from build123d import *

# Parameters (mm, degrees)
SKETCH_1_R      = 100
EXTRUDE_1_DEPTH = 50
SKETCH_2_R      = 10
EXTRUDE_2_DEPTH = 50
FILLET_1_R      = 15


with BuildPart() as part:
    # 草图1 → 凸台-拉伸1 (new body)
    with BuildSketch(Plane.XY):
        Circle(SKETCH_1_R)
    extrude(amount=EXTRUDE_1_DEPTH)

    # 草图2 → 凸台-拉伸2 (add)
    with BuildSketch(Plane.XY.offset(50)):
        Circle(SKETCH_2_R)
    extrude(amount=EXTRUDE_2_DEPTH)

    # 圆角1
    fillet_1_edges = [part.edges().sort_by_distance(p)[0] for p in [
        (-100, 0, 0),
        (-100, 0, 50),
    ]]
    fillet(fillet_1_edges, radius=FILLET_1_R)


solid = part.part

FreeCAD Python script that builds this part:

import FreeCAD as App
import Part
import Sketcher

V = App.Vector


def edges_at(feature, points):
    """Names of the edges that pass closest to the given points."""
    edges = feature.Shape.Edges
    near = lambda p: min(range(len(edges)), key=lambda i: edges[i].distToShape(Part.Vertex(*p))[0])
    return sorted({f"Edge{near(p) + 1}" for p in points})

doc = App.newDocument("Part")
params = doc.addObject("Spreadsheet::Sheet", "Params")
for row, (alias, value) in enumerate([
    ("sketch1_diameter", "200 mm"),
    ("pad1_length", "50 mm"),
    ("sketch2_diameter", "20 mm"),
    ("pad2_length", "50 mm"),
    ("fillet_radius", "15 mm"),
], start=1):
    params.set(f"A{row}", alias)
    params.set(f"B{row}", "=" + value)
    params.setAlias(f"B{row}", alias)

body = doc.addObject("PartDesign::Body", "Body")

sketch1 = body.newObject("Sketcher::SketchObject", "Sketch")
sketch1.AttachmentSupport = (doc.getObject("XY_Plane"), [""])
sketch1.MapMode = "FlatFace"
sketch1.addGeometry(Part.Circle(V(0, 0, 0), V(0, 0, 1), 100), False)
sketch1.addConstraint([
    Sketcher.Constraint("Coincident", 0, 3, -1, 1),
    Sketcher.Constraint("Diameter", 0, 200.0),
])
sketch1.setExpression("Constraints[1]", "Params.sketch1_diameter")
pad1 = body.newObject("PartDesign::Pad", "Pad")
pad1.Profile = sketch1
pad1.setExpression("Length", "Params.pad1_length")

sketch2 = body.newObject("Sketcher::SketchObject", "Sketch001")
sketch2.AttachmentSupport = (doc.getObject("XY_Plane"), [""])
sketch2.MapMode = "FlatFace"
sketch2.AttachmentOffset = App.Placement(V(0, 0, 50), App.Rotation())
sketch2.addGeometry(Part.Circle(V(0, 0, 0), V(0, 0, 1), 10), False)
sketch2.addConstraint([
    Sketcher.Constraint("Coincident", 0, 3, -1, 1),
    Sketcher.Constraint("Diameter", 0, 20.0),
])
sketch2.setExpression("Constraints[1]", "Params.sketch2_diameter")
pad2 = body.newObject("PartDesign::Pad", "Pad001")
pad2.Profile = sketch2
pad2.setExpression("Length", "Params.pad2_length")
doc.recompute()

fillet = body.newObject("PartDesign::Fillet", "Fillet")
fillet.Base = (pad2, edges_at(pad2, [(-100, 0, 0), (-100, 0, 50)]))
fillet.setExpression("Radius", "Params.fillet_radius")

doc.recompute()
